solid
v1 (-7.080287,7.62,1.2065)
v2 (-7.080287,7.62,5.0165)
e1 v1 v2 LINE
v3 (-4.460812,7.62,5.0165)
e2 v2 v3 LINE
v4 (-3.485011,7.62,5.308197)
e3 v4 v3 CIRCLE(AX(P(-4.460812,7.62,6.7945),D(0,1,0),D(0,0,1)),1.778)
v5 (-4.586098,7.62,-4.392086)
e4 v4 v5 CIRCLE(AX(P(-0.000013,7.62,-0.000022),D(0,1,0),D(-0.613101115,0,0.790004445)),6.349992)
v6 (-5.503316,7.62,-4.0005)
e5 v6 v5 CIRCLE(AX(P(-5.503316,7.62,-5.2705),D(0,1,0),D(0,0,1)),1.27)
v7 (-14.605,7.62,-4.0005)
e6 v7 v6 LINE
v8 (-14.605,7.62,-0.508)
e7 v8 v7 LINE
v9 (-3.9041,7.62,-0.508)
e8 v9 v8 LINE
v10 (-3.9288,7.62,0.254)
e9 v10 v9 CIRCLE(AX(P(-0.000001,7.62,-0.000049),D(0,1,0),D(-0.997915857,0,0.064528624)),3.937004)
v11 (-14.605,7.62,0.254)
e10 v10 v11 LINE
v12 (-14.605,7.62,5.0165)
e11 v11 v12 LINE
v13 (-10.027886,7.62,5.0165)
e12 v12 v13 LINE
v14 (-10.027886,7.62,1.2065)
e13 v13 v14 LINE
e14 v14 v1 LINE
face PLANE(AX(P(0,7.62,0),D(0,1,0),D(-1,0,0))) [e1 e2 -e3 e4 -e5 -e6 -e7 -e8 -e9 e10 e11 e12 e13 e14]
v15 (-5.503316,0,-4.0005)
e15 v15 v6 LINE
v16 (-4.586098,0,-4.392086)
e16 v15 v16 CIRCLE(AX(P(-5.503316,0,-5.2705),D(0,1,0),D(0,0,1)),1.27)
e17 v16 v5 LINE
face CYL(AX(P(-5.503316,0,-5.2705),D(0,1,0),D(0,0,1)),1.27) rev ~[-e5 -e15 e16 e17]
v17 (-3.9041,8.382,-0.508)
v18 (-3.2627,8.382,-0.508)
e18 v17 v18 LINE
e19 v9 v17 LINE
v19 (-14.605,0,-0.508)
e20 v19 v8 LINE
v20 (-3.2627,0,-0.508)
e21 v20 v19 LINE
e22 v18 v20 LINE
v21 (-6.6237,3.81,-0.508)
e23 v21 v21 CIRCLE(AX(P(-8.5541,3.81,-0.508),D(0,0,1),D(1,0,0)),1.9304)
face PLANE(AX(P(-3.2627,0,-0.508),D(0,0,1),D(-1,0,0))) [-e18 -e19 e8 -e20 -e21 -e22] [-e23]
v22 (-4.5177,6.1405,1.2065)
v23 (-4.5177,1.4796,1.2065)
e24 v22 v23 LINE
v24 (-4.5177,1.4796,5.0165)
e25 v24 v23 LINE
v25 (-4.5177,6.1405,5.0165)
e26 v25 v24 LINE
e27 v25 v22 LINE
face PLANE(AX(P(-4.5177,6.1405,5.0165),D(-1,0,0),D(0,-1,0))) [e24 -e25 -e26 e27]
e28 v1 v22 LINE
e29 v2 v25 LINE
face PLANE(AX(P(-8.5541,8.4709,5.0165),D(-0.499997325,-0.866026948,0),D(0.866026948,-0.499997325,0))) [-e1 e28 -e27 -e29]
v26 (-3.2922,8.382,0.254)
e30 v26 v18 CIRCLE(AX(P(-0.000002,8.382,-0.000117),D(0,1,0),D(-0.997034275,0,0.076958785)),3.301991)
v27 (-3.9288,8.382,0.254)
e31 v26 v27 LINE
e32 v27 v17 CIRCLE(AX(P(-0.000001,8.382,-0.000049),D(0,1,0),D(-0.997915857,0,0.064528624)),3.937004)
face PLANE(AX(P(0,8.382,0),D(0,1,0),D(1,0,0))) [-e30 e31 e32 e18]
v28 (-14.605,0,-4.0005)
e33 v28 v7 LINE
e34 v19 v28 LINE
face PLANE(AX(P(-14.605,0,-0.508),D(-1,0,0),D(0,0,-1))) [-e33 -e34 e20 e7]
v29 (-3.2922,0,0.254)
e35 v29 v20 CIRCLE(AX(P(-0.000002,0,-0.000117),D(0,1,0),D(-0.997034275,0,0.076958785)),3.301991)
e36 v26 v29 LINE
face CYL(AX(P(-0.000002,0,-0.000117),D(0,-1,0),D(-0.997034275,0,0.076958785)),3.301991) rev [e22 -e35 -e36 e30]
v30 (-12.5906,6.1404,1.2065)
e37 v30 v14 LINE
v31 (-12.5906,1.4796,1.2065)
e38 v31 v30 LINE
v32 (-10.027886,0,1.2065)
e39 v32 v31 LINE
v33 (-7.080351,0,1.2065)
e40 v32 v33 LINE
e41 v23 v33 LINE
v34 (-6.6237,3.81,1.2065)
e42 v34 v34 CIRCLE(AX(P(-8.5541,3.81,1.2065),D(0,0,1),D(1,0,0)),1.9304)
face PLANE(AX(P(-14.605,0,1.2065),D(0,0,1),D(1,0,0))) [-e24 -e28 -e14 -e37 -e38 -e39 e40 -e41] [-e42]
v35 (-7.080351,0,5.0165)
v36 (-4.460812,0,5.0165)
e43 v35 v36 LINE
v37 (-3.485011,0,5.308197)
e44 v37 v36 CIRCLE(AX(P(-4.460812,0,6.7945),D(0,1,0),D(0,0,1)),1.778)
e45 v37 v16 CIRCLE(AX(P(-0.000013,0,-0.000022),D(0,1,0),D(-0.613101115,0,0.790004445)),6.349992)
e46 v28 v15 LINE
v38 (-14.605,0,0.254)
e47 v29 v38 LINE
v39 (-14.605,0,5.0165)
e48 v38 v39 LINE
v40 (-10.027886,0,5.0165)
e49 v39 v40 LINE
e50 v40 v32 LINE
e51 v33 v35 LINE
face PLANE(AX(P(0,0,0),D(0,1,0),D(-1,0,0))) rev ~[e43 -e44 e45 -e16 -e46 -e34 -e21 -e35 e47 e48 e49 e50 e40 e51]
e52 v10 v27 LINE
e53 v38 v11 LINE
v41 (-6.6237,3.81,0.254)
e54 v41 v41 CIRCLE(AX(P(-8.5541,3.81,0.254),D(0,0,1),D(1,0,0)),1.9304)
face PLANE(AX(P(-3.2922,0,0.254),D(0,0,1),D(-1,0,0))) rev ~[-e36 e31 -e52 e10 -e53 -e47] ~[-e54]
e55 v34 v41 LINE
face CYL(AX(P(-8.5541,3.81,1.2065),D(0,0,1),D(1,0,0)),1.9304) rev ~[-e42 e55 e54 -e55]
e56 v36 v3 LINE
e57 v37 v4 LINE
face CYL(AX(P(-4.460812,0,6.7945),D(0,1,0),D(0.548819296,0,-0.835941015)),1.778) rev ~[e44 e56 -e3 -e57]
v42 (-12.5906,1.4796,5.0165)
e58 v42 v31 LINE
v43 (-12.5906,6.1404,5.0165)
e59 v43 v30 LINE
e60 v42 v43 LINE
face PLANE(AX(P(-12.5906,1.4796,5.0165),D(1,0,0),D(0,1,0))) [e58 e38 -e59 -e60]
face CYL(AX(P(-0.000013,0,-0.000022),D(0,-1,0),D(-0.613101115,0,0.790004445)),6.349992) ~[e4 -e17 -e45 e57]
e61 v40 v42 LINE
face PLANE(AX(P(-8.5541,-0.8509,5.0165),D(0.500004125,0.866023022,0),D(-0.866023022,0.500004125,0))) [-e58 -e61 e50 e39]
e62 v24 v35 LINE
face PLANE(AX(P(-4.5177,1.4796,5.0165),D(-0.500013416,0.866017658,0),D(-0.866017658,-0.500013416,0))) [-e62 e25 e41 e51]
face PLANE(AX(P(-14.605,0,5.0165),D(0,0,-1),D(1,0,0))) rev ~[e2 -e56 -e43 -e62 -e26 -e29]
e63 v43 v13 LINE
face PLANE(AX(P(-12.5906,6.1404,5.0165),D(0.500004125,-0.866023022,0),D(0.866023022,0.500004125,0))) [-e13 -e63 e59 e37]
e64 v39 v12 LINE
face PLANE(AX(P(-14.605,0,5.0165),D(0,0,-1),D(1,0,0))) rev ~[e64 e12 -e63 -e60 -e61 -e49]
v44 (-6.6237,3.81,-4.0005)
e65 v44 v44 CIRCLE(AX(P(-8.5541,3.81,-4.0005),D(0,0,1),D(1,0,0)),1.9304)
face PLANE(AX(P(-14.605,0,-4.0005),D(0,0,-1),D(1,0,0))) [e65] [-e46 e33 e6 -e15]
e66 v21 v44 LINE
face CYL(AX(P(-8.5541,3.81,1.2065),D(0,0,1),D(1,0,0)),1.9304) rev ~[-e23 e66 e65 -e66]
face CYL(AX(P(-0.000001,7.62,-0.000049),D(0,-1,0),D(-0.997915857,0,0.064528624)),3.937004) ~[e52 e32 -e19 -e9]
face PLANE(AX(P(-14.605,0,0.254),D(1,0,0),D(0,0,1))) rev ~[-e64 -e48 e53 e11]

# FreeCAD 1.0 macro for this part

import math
import FreeCAD as App
import Part
import Sketcher
Q = App.Units.Quantity


def edges_at(feature, points):
    """Names of the edges that pass closest to the given points."""
    edges = feature.Shape.Edges
    near = lambda p: min(range(len(edges)), key=lambda i: edges[i].distToShape(Part.Vertex(*p))[0])
    return sorted({f"Edge{near(p) + 1}" for p in points})

doc = App.newDocument("Part")
params = doc.addObject("Spreadsheet::Sheet", "Params")
for row, (alias, value) in enumerate([
    ("sketch1_radius", "0.25 in"),
    ("sketch1_radius2", "0.13 in"),
    ("sketch1_height", "0.1875 in"),
    ("pad1_length", "0.3 in"),
    ("sketch2_radius", "0.155 in"),
    ("sketch2_radius2", "0.13 in"),
    ("pad2_length", "0.03 in"),
    ("pocket1_length", "0.15 in"),
    ("sketch4_diameter", "0.152 in"),
    ("fillet_radius", "0.05 in"),
    ("fillet2_radius", "0.07 in"),
], start=1):
    params.set(f"A{row}", alias)
    params.set(f"B{row}", "=" + value)
    params.setAlias(f"B{row}", alias)

body = doc.addObject("PartDesign::Body", "Body")

# Sketch on XZ plane
sketch1 = body.newObject("Sketcher::SketchObject", "Sketch")
sketch1.AttachmentSupport = (doc.getObject("XZ_Plane"), [""])
sketch1.MapMode = "FlatFace"
sketch1.addGeometry([
    Part.LineSegment(App.Vector(-14.6, 5, 0), App.Vector(-3.9, 5, 0)),  # 0
    Part.ArcOfCircle(Part.Circle(App.Vector(0, 0, 0), App.Vector(0, 0, 1), 6.3), math.radians(-141), math.radians(128)),  # 1
    Part.LineSegment(App.Vector(-4.9, -4, 0), App.Vector(-14.6, -4, 0)),  # 2
    Part.LineSegment(App.Vector(-14.6, -4, 0), App.Vector(-14.6, -0.5, 0)),  # 3
    Part.LineSegment(App.Vector(-14.6, -0.5, 0), App.Vector(-3.3, -0.5, 0)),  # 4
    Part.ArcOfCircle(Part.Circle(App.Vector(0, 0, 0), App.Vector(0, 0, 1), 3.3), math.radians(-171), math.radians(176)),  # 5
    Part.LineSegment(App.Vector(-3.3, 0.3, 0), App.Vector(-14.6, 0.3, 0)),  # 6
    Part.LineSegment(App.Vector(-14.6, 0.3, 0), App.Vector(-14.6, 5, 0)),  # 7
], False)
sketch1.addConstraint([
    Sketcher.Constraint("Coincident", 0, 2, 1, 2),
    Sketcher.Constraint("Coincident", 1, 1, 2, 1),
    Sketcher.Constraint("Coincident", 2, 2, 3, 1),
    Sketcher.Constraint("Coincident", 3, 2, 4, 1),
    Sketcher.Constraint("Coincident", 4, 2, 5, 1),
    Sketcher.Constraint("Coincident", 5, 2, 6, 1),
    Sketcher.Constraint("Coincident", 6, 2, 7, 1),
    Sketcher.Constraint("Coincident", 7, 2, 0, 1),
    Sketcher.Constraint("Horizontal", 0),
    Sketcher.Constraint("Horizontal", 2),
    Sketcher.Constraint("Vertical", 3),
    Sketcher.Constraint("Horizontal", 4),
    Sketcher.Constraint("Horizontal", 6),
    Sketcher.Constraint("Vertical", 7),
    Sketcher.Constraint("Coincident", 1, 3, -1, 1),
    Sketcher.Constraint("Coincident", 5, 3, -1, 1),
    Sketcher.Constraint("Vertical", 3, 2, 6, 2),
    Sketcher.Constraint("Radius", 1, Q("0.25 in")),
    Sketcher.Constraint("Radius", 5, Q("0.13 in")),
    Sketcher.Constraint("DistanceY", 7, 1, 7, 2, Q("0.1875 in")),
    Sketcher.Constraint("DistanceY", 3, 2, -1, 1, Q("0.02 in")),
    Sketcher.Constraint("DistanceY", -1, 1, 5, 2, Q("0.01 in")),
    Sketcher.Constraint("DistanceY", 3, 1, 3, 2, Q("0.1375 in")),
    Sketcher.Constraint("DistanceX", 2, 2, -1, 1, Q("0.575 in")),
])
sketch1.setExpression("Constraints[17]", "Params.sketch1_radius")
sketch1.setExpression("Constraints[18]", "Params.sketch1_radius2")
sketch1.setExpression("Constraints[19]", "Params.sketch1_height")
pad1 = body.newObject("PartDesign::Pad", "Pad")
pad1.Profile = sketch1
pad1.setExpression("Length", "Params.pad1_length")
pad1.Reversed = True

# Sketch on XZ plane
sketch2 = body.newObject("Sketcher::SketchObject", "Sketch001")
sketch2.AttachmentSupport = (doc.getObject("XZ_Plane"), [""])
sketch2.MapMode = "FlatFace"
sketch2.AttachmentOffset = App.Placement(App.Vector(0, 0, -0.3 * 25.4), App.Rotation())
sketch2.addGeometry([
    Part.LineSegment(App.Vector(-3.3, 0.3, 0), App.Vector(-3.9, 0.3, 0)),
    Part.ArcOfCircle(Part.Circle(App.Vector(0, 0, 0), App.Vector(0, 0, 1), 3.9), math.radians(-173), math.radians(176)),
    Part.LineSegment(App.Vector(-3.9, -0.5, 0), App.Vector(-3.3, -0.5, 0)),
    Part.ArcOfCircle(Part.Circle(App.Vector(0, 0, 0), App.Vector(0, 0, 1), 3.3), math.radians(-171), math.radians(176)),
], False)
sketch2.addConstraint([
    Sketcher.Constraint("Coincident", 0, 2, 1, 2),
    Sketcher.Constraint("Coincident", 1, 1, 2, 1),
    Sketcher.Constraint("Coincident", 2, 2, 3, 1),
    Sketcher.Constraint("Coincident", 3, 2, 0, 1),
    Sketcher.Constraint("Horizontal", 0),
    Sketcher.Constraint("Horizontal", 2),
    Sketcher.Constraint("Coincident", 1, 3, -1, 1),
    Sketcher.Constraint("Coincident", 3, 3, -1, 1),
    Sketcher.Constraint("Radius", 1, Q("0.155 in")),
    Sketcher.Constraint("Radius", 3, Q("0.13 in")),
    Sketcher.Constraint("DistanceY", -1, 1, 0, 2, Q("0.01 in")),
    Sketcher.Constraint("DistanceY", 1, 1, -1, 1, Q("0.02 in")),
])
sketch2.setExpression("Constraints[8]", "Params.sketch2_radius")
sketch2.setExpression("Constraints[9]", "Params.sketch2_radius2")
pad2 = body.newObject("PartDesign::Pad", "Pad001")
pad2.Profile = sketch2
pad2.setExpression("Length", "Params.pad2_length")
pad2.Reversed = True

# Sketch on XY plane
sketch3 = body.newObject("Sketcher::SketchObject", "Sketch002")
sketch3.AttachmentSupport = (doc.getObject("XY_Plane"), [""])
sketch3.MapMode = "FlatFace"
sketch3.AttachmentOffset = App.Placement(App.Vector(0, 0, 0.1975 * 25.4), App.Rotation())
sketch3.addGeometry([
    Part.LineSegment(App.Vector(-12.6, 1.5, 0), App.Vector(-8.6, -0.9, 0)),  # 0
    Part.LineSegment(App.Vector(-8.6, -0.9, 0), App.Vector(-4.5, 1.5, 0)),  # 1
    Part.LineSegment(App.Vector(-4.5, 1.5, 0), App.Vector(-4.5, 6.1, 0)),  # 2
    Part.LineSegment(App.Vector(-4.5, 6.1, 0), App.Vector(-8.6, 8.5, 0)),  # 3
    Part.LineSegment(App.Vector(-8.6, 8.5, 0), App.Vector(-12.6, 6.1, 0)),  # 4
    Part.LineSegment(App.Vector(-12.6, 6.1, 0), App.Vector(-12.6, 1.5, 0)),  # 5
], False)
sketch3.addConstraint([
    Sketcher.Constraint("Coincident", 0, 2, 1, 1),
    Sketcher.Constraint("Coincident", 1, 2, 2, 1),
    Sketcher.Constraint("Coincident", 2, 2, 3, 1),
    Sketcher.Constraint("Coincident", 3, 2, 4, 1),
    Sketcher.Constraint("Coincident", 4, 2, 5, 1),
    Sketcher.Constraint("Coincident", 5, 2, 0, 1),
    Sketcher.Constraint("Vertical", 2),
    Sketcher.Constraint("Vertical", 5),
    Sketcher.Constraint("Parallel", 0, 3),
    Sketcher.Constraint("Parallel", 1, 4),
    Sketcher.Constraint("Horizontal", 2, 2, 4, 2),
    Sketcher.Constraint("Horizontal", 1, 2, 5, 2),
    Sketcher.Constraint("Vertical", 0, 2, 3, 2),
    Sketcher.Constraint("DistanceY", 2, 1, 2, 2, Q("0.1835 in")),
    Sketcher.Constraint("Angle", 0, Q("-30.0003 deg")),
    Sketcher.Constraint("DistanceY", 0, 2, 3, 2, Q("0.367 in")),
    Sketcher.Constraint("DistanceY", 0, 2, -1, 1, Q("0.0335 in")),
    Sketcher.Constraint("DistanceX", 4, 2, -1, 1, Q("0.4957 in")),
])
pocket1 = body.newObject("PartDesign::Pocket", "Pocket")
pocket1.Profile = sketch3
pocket1.setExpression("Length", "Params.pocket1_length")

# Sketch on XY plane
sketch4 = body.newObject("Sketcher::SketchObject", "Sketch003")
sketch4.AttachmentSupport = (doc.getObject("XY_Plane"), [""])
sketch4.MapMode = "FlatFace"
sketch4.AttachmentOffset = App.Placement(App.Vector(0, 0, 0.0475 * 25.4), App.Rotation())
sketch4.addGeometry(Part.Circle(App.Vector(-8.6, 3.8, 0), App.Vector(0, 0, 1), 1.9), False)
sketch4.addConstraint([
    Sketcher.Constraint("Diameter", 0, Q("0.152 in")),
    Sketcher.Constraint("DistanceY", -1, 1, 0, 3, Q("0.15 in")),
    Sketcher.Constraint("DistanceX", 0, 3, -1, 1, 8.554),
])
sketch4.setExpression("Constraints[0]", "Params.sketch4_diameter")
pocket2 = body.newObject("PartDesign::Pocket", "Pocket001")
pocket2.Profile = sketch4
pocket2.Type = "ThroughAll"
doc.recompute()

fillet = body.newObject("PartDesign::Fillet", "Fillet")
fillet.Base = (pocket2, edges_at(pocket2, [(-4.931, 3.81, -4)]))
fillet.setExpression("Radius", "Params.fillet_radius")
doc.recompute()

fillet2 = body.newObject("PartDesign::Fillet", "Fillet001")
fillet2.Base = (fillet, edges_at(fillet, [(-3.893, 3.81, 5.016)]))
fillet2.setExpression("Radius", "Params.fillet2_radius")

doc.recompute()
